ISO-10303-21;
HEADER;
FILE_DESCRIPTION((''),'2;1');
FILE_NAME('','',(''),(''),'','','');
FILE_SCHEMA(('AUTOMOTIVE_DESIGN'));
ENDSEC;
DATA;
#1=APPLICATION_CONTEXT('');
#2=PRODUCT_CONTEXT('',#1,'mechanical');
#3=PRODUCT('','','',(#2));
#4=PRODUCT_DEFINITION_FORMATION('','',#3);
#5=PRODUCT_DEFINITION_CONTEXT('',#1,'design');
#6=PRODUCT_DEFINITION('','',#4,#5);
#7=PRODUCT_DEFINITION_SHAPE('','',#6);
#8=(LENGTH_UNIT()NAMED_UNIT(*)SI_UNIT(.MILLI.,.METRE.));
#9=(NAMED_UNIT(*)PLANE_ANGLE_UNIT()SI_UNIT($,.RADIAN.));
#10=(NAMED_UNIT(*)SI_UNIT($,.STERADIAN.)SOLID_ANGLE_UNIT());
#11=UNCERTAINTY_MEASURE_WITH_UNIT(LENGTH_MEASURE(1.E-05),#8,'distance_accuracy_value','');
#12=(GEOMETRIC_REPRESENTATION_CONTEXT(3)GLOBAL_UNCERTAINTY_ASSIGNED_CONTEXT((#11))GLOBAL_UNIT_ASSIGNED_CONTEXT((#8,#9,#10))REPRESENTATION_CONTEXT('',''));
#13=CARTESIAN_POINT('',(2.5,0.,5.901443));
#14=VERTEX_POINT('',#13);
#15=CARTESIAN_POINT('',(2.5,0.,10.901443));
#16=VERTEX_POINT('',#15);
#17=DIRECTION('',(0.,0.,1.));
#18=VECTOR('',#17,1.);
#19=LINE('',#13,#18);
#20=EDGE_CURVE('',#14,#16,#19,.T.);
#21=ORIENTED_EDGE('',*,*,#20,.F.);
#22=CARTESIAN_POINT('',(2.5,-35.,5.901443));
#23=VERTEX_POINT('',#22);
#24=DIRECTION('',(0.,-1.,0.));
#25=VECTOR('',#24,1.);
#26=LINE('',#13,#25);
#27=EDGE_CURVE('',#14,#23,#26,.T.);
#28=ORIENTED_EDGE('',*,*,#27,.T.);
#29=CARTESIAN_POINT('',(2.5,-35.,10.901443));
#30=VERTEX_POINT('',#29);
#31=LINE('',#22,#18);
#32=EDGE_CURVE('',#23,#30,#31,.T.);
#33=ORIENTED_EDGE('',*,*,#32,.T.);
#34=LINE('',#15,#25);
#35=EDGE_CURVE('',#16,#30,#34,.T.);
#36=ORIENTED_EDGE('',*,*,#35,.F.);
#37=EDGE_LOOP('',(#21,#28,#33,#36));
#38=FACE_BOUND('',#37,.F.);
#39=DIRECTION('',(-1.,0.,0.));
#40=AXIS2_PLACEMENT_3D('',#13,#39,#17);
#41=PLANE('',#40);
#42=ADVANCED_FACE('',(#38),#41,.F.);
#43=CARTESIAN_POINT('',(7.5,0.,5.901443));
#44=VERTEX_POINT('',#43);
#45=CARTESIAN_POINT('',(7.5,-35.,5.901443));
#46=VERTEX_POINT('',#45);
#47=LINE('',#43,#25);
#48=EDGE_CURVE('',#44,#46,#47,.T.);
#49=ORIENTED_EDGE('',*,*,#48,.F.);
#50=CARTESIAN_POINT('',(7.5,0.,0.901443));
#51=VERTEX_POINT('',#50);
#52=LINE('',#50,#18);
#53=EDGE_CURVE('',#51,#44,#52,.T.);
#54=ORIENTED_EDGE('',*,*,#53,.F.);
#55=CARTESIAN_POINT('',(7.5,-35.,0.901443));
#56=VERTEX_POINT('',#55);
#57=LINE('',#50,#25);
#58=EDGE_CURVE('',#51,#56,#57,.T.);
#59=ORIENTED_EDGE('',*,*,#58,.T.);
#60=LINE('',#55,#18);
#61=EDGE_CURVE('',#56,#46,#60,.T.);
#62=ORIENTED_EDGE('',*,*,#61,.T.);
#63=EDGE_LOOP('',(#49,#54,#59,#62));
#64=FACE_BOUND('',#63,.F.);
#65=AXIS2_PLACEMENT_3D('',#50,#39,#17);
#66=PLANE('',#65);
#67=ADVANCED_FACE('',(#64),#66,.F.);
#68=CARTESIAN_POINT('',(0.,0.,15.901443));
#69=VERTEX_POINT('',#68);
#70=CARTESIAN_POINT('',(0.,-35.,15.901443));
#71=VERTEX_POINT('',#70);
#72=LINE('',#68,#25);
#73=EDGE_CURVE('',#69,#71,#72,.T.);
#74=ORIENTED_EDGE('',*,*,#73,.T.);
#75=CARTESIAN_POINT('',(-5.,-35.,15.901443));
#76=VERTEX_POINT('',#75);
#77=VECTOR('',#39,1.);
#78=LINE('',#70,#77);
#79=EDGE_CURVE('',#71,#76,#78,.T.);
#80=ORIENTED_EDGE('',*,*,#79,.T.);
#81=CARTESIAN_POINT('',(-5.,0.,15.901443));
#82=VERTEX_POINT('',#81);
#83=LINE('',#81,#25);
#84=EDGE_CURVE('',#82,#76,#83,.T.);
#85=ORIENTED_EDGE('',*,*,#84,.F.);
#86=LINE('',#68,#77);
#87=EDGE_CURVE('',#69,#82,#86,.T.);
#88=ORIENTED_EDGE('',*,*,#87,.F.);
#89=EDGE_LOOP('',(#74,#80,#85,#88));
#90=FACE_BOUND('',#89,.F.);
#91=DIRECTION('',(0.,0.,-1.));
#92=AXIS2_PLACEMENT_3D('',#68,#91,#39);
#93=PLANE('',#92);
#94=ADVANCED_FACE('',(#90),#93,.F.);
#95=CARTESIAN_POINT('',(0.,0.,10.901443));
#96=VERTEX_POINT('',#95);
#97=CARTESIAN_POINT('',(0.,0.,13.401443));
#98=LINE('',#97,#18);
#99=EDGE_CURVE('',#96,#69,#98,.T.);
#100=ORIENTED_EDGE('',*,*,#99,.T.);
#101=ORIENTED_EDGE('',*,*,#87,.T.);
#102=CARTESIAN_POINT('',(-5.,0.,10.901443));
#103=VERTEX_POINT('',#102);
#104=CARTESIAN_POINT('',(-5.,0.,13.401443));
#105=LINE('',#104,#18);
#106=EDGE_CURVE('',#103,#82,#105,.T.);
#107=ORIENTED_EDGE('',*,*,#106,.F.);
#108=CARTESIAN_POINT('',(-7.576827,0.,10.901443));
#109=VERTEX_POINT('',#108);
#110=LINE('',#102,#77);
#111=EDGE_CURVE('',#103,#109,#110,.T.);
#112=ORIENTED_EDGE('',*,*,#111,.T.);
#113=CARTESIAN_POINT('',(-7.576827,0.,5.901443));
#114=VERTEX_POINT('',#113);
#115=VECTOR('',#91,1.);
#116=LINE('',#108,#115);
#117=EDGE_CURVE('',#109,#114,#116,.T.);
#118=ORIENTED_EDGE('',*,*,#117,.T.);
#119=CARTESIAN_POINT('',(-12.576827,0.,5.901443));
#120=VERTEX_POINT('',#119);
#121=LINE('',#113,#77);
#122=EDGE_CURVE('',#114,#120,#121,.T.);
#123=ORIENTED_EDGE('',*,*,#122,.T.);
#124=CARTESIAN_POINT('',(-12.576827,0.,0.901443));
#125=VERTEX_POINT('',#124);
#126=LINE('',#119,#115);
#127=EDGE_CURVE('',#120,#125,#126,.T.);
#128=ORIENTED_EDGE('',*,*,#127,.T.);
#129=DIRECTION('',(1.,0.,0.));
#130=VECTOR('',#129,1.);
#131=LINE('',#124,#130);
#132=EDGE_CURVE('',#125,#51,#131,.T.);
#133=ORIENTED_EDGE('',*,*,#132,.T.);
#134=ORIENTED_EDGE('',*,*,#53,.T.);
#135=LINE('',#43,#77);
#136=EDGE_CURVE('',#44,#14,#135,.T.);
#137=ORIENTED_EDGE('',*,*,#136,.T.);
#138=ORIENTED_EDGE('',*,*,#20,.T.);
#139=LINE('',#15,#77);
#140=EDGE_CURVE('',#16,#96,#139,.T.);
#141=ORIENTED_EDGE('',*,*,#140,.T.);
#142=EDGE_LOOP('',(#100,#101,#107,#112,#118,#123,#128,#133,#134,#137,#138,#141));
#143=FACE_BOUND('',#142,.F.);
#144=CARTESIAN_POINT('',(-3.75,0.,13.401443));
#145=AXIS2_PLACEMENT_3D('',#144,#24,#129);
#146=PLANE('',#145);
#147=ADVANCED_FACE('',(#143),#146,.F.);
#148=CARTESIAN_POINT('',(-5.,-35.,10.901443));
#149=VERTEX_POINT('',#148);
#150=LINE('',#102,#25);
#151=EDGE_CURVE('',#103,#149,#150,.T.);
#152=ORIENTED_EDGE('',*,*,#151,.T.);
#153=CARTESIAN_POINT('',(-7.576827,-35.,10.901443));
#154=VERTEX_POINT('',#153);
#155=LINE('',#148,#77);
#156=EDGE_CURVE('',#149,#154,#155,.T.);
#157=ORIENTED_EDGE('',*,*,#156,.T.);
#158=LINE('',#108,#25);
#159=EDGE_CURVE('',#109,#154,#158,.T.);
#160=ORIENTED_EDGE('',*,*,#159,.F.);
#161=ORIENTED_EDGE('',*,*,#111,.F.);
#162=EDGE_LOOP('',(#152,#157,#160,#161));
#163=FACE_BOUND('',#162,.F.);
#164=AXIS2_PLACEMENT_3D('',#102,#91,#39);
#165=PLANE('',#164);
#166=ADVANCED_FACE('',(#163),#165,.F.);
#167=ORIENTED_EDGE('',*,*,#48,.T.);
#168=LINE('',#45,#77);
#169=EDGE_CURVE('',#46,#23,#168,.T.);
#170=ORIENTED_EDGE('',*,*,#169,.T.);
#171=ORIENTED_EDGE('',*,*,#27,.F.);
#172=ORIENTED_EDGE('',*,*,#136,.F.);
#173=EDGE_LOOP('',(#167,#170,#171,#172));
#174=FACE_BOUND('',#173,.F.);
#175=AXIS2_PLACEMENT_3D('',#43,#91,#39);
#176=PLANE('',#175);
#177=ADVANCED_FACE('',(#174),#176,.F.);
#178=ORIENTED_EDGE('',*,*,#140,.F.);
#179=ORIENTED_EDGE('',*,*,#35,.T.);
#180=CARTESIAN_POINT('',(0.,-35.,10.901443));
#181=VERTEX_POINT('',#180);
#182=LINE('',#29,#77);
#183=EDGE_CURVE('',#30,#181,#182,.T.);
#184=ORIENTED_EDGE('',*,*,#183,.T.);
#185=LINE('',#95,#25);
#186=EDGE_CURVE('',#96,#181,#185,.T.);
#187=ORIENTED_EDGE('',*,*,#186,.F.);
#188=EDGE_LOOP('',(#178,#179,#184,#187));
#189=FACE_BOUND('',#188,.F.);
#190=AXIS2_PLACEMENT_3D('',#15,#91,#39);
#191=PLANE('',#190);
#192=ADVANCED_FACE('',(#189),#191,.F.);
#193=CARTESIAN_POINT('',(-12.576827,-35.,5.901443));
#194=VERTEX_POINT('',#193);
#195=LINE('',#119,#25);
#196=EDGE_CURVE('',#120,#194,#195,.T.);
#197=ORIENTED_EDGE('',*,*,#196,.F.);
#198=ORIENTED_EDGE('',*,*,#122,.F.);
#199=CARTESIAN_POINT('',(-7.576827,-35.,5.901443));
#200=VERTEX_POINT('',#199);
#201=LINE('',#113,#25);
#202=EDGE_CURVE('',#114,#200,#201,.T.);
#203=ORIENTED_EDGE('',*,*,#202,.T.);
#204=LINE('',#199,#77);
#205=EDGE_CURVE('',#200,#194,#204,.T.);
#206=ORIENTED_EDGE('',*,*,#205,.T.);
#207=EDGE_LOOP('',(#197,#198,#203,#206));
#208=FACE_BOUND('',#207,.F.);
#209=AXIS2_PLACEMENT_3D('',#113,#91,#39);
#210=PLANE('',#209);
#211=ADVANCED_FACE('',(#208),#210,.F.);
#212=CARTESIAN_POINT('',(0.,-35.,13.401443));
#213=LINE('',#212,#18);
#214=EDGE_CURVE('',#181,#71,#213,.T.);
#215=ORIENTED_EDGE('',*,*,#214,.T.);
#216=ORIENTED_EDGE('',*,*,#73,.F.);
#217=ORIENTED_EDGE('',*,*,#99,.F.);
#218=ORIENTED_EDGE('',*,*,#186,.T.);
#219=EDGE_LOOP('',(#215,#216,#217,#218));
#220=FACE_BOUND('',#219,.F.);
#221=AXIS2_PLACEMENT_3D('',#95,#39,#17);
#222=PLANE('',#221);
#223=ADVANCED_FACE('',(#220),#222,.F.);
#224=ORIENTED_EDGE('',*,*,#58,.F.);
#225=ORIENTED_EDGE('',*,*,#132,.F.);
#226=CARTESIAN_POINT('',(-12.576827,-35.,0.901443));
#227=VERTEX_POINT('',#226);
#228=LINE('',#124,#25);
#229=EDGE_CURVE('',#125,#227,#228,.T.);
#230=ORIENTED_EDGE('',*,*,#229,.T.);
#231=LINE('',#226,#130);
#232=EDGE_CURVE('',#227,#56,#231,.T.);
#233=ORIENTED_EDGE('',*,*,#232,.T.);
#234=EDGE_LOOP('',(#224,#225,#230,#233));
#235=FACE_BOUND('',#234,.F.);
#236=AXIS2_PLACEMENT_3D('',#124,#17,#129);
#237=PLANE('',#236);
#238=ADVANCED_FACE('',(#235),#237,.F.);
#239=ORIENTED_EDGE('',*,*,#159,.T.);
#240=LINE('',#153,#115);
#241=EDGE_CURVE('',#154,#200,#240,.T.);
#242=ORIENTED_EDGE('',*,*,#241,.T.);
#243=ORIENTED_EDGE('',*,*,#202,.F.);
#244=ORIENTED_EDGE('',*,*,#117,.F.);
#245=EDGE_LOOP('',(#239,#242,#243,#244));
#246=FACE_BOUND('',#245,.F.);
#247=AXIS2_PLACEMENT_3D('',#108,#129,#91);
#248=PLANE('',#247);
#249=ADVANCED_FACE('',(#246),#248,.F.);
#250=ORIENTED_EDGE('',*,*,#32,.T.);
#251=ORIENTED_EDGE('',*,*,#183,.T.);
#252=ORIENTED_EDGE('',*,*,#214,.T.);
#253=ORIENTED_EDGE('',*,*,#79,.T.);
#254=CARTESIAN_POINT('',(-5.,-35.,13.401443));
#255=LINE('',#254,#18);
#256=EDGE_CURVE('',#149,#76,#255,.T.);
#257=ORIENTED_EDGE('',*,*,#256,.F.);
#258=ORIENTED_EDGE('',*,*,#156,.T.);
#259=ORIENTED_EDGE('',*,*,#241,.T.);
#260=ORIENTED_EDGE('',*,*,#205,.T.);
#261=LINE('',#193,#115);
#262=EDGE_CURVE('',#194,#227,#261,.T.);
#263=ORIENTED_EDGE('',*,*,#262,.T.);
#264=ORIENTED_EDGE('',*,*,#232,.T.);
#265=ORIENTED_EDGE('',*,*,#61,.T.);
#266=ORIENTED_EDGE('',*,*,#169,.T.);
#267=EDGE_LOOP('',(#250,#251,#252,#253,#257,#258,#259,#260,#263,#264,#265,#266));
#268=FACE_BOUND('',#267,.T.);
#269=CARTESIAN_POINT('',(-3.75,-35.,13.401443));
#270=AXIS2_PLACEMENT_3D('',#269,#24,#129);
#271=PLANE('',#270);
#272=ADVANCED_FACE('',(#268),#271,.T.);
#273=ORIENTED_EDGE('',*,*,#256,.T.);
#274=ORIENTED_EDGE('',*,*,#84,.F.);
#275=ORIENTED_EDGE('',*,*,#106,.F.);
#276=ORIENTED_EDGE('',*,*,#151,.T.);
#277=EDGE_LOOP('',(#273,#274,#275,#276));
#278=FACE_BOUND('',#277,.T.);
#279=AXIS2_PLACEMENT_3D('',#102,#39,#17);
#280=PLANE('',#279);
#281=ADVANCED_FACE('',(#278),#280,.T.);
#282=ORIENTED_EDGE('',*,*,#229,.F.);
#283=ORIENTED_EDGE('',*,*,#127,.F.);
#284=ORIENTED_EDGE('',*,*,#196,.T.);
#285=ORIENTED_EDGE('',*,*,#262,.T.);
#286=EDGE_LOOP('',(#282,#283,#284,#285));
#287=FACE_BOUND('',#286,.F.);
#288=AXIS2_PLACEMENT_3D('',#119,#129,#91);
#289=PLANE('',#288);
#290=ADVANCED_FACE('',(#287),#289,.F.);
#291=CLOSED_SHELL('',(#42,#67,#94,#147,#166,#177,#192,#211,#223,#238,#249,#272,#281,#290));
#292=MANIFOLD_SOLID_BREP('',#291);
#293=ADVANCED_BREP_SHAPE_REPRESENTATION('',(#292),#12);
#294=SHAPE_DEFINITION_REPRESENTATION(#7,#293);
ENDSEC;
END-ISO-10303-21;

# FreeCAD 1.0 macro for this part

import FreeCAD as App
import Part
import Sketcher


def add_polygon(sketch, points):
    """Adds a closed chain of lines whose ends are joined by coincident constraints."""
    first, n = sketch.GeometryCount, len(points)
    for a, b in zip(points, points[1:] + points[:1]):
        sketch.addGeometry(Part.LineSegment(App.Vector(*a, 0), App.Vector(*b, 0)), False)
    for i in range(n):
        sketch.addConstraint(Sketcher.Constraint("Coincident", first + i, 2, first + (i + 1) % n, 1))

doc = App.newDocument("Part")
body = doc.addObject("PartDesign::Body", "Body")

sketch1 = doc.addObject("Sketcher::SketchObject", "Sketch")
body.addObject(sketch1)
sketch1.AttachmentSupport = (doc.XZ_Plane, [""])
sketch1.MapMode = "FlatFace"
add_polygon(sketch1, [(-5, 15.901443), (-5, 10.901443), (-7.576827, 10.901443), (-7.576827, 5.901443), (-12.576827, 5.901443), (-12.576827, 0.901443), (7.5, 0.901443), (7.5, 5.901443), (2.5, 5.901443), (2.5, 10.901443), (0, 10.901443), (0, 15.901443)])
sketch1.addConstraint(Sketcher.Constraint("Vertical", 0))
sketch1.addConstraint(Sketcher.Constraint("Horizontal", 1))
sketch1.addConstraint(Sketcher.Constraint("Vertical", 2))
sketch1.addConstraint(Sketcher.Constraint("Horizontal", 3))
sketch1.addConstraint(Sketcher.Constraint("Vertical", 4))
sketch1.addConstraint(Sketcher.Constraint("Horizontal", 5))
sketch1.addConstraint(Sketcher.Constraint("Vertical", 6))
sketch1.addConstraint(Sketcher.Constraint("Horizontal", 7))
sketch1.addConstraint(Sketcher.Constraint("Vertical", 8))
sketch1.addConstraint(Sketcher.Constraint("Horizontal", 9))
sketch1.addConstraint(Sketcher.Constraint("Vertical", 10))
sketch1.addConstraint(Sketcher.Constraint("Horizontal", 11))
sketch1.addConstraint(Sketcher.Constraint("PointOnObject", 9, 2, -2))
sketch1.addConstraint(Sketcher.Constraint("Horizontal", 3, 2, 6, 2))
sketch1.addConstraint(Sketcher.Constraint("Horizontal", 1, 2, 8, 2))
sketch1.addConstraint(Sketcher.Constraint("Equal", 3, 7))
sketch1.addConstraint(Sketcher.Constraint("Equal", 7, 11))
sketch1.addConstraint(Sketcher.Constraint("Equal", 11, 0))
sketch1.addConstraint(Sketcher.Constraint("Equal", 0, 2))
sketch1.addConstraint(Sketcher.Constraint("Equal", 2, 4))
sketch1.addConstraint(Sketcher.Constraint("DistanceX", 3, 2, 3, 1, 5.0))
sketch1.addConstraint(Sketcher.Constraint("DistanceX", 9, 2, 9, 1, 2.5))
sketch1.addConstraint(Sketcher.Constraint("DistanceX", 1, 2, 1, 1, 2.576827))
sketch1.addConstraint(Sketcher.Constraint("DistanceY", -1, 1, 0, 2, 10.901443))
pad1 = doc.addObject("PartDesign::Pad", "Pad")
body.addObject(pad1)
pad1.Profile = sketch1
pad1.Length = 35

doc.recompute()
